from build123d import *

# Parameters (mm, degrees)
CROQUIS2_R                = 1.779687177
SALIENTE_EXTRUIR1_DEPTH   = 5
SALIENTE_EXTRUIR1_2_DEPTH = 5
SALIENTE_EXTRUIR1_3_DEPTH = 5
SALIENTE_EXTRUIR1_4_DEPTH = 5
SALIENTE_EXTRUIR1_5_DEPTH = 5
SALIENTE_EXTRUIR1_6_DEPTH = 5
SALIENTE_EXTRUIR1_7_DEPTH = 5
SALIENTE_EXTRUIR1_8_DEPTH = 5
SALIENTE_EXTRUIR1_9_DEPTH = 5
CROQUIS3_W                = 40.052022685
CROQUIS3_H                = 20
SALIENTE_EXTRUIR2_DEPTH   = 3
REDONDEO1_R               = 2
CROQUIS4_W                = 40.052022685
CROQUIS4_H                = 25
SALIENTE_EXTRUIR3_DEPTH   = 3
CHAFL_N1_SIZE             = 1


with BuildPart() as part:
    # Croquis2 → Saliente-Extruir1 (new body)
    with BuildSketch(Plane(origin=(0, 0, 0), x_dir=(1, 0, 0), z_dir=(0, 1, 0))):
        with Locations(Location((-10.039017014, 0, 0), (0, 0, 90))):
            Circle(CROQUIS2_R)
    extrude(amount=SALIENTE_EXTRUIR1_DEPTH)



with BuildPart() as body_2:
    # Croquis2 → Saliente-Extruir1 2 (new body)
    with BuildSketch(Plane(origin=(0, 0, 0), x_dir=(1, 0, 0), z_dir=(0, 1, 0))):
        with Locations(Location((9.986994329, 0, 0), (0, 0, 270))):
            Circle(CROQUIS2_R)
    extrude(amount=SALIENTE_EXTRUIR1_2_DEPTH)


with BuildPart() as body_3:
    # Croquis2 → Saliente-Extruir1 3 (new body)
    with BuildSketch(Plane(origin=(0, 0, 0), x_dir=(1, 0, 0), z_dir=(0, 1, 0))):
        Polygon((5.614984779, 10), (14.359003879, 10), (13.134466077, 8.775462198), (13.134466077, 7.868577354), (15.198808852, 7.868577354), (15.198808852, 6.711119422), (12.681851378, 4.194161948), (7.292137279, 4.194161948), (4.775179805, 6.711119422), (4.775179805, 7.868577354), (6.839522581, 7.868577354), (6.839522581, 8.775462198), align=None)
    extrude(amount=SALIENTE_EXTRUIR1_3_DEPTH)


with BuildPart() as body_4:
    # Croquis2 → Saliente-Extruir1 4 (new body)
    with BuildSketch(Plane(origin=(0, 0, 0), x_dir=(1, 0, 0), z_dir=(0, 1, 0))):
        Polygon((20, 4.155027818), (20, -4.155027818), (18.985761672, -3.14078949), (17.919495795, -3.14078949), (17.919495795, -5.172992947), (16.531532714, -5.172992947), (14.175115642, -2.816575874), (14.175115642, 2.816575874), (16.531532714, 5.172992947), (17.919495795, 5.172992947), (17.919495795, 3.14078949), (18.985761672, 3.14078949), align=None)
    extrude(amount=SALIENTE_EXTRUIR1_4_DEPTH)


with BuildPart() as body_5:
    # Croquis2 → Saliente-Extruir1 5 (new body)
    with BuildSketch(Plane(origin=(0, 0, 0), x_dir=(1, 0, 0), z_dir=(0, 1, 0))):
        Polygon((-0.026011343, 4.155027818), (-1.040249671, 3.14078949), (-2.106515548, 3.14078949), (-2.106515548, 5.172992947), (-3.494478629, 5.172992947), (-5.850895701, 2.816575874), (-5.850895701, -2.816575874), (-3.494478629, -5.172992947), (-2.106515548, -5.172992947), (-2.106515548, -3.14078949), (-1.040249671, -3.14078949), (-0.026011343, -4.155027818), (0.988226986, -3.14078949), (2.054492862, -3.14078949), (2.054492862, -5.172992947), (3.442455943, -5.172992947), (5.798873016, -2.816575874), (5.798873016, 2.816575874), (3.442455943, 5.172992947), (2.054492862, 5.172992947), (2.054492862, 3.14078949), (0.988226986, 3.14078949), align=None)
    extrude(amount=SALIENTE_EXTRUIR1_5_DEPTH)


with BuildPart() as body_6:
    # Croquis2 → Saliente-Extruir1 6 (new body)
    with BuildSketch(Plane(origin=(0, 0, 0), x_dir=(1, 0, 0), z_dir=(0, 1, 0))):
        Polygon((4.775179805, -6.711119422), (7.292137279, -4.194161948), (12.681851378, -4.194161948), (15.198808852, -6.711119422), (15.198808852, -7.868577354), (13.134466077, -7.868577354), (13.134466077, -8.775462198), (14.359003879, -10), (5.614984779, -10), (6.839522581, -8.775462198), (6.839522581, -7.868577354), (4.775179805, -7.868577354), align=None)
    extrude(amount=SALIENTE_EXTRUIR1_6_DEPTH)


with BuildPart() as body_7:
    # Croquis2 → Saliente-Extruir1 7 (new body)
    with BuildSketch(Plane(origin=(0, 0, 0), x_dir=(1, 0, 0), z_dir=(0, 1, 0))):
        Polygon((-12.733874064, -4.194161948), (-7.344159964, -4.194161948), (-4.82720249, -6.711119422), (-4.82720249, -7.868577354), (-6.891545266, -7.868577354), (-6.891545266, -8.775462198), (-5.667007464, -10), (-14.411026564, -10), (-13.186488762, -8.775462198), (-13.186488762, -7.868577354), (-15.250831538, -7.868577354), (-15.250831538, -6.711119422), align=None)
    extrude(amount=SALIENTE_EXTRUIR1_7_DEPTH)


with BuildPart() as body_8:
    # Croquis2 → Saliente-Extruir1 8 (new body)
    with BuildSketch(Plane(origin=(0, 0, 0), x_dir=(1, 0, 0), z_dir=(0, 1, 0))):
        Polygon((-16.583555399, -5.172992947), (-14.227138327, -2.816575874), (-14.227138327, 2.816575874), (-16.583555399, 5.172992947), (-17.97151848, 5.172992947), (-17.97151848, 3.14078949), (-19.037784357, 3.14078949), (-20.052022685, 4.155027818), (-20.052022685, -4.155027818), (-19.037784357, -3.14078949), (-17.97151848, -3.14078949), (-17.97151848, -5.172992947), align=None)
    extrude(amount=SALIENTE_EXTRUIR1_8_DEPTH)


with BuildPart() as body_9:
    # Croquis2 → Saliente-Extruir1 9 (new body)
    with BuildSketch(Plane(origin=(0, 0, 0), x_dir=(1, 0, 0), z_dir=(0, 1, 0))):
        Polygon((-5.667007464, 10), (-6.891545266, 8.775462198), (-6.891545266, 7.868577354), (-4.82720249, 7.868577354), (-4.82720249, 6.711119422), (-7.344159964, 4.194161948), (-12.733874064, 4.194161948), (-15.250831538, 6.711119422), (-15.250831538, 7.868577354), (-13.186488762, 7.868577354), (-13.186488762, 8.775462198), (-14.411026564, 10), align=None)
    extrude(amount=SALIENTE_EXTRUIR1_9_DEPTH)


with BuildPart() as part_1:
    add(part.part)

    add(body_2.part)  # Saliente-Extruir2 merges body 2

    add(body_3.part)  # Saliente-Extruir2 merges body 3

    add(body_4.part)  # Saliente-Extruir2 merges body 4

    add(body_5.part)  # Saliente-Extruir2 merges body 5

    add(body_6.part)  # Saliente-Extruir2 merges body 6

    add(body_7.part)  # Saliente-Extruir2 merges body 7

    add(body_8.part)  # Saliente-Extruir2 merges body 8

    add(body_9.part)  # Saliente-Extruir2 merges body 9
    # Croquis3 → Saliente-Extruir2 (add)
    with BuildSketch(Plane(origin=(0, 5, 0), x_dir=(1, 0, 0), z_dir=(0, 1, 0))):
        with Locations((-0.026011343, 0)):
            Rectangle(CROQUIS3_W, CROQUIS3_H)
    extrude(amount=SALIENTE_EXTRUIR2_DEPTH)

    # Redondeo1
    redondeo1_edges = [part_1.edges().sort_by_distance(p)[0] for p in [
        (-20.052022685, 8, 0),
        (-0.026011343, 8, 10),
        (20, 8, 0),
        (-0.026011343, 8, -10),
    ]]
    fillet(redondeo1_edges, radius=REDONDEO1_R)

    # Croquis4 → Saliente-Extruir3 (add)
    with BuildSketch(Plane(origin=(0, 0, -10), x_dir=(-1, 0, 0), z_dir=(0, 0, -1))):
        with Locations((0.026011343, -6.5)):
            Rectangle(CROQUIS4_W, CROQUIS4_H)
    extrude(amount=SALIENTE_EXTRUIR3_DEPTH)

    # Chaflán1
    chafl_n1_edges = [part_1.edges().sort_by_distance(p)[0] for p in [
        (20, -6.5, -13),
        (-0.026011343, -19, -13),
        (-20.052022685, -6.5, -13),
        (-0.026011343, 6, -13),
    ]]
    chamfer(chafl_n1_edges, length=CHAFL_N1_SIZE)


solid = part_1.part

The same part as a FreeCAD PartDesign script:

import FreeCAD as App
import Part
import Sketcher

V = App.Vector


def edges_at(feature, points):
    """Names of the edges that pass closest to the given points."""
    edges = feature.Shape.Edges
    near = lambda p: min(range(len(edges)), key=lambda i: edges[i].distToShape(Part.Vertex(*p))[0])
    return sorted({f"Edge{near(p) + 1}" for p in points})


def add_polygon(sketch, points):
    """Adds a closed chain of lines whose ends are joined by coincident constraints."""
    first, n = sketch.GeometryCount, len(points)
    for a, b in zip(points, points[1:] + points[:1]):
        sketch.addGeometry(Part.LineSegment(App.Vector(*a, 0), App.Vector(*b, 0)), False)
    for i in range(n):
        sketch.addConstraint(Sketcher.Constraint("Coincident", first + i, 2, first + (i + 1) % n, 1))

doc = App.newDocument("Part")
body = doc.addObject("PartDesign::Body", "Body")

# Sketch on XZ plane
sketch1 = body.newObject("Sketcher::SketchObject", "Sketch")
sketch1.AttachmentSupport = (doc.getObject("XZ_Plane"), [""])
sketch1.MapMode = "FlatFace"
sketch1.addGeometry(Part.Circle(V(-10, 0, 0), V(0, 0, 1), 1.8), False)
sketch1.addConstraint(Sketcher.Constraint("PointOnObject", 0, 3, -1))
sketch1.addConstraint(Sketcher.Constraint("Diameter", 0, 3.559374))
sketch1.addConstraint(Sketcher.Constraint("DistanceX", 0, 3, -1, 1, 10.039017))
pad1 = body.newObject("PartDesign::Pad", "Pad")
pad1.Profile = sketch1
pad1.Length = 5
pad1.Reversed = True
body2 = doc.addObject("PartDesign::Body", "Body001")

# Sketch on XZ plane
sketch2 = body2.newObject("Sketcher::SketchObject", "Sketch001")
sketch2.AttachmentSupport = (doc.getObject("XZ_Plane001"), [""])
sketch2.MapMode = "FlatFace"
sketch2.addGeometry(Part.Circle(V(10, 0, 0), V(0, 0, 1), 1.8), False)
sketch2.addConstraint(Sketcher.Constraint("PointOnObject", 0, 3, -1))
sketch2.addConstraint(Sketcher.Constraint("Diameter", 0, 3.559374))
sketch2.addConstraint(Sketcher.Constraint("DistanceX", -1, 1, 0, 3, 9.986994))
pad2 = body2.newObject("PartDesign::Pad", "Pad001")
pad2.Profile = sketch2
pad2.Length = 5
pad2.Reversed = True
body3 = doc.addObject("PartDesign::Body", "Body002")

# Sketch on XZ plane
sketch3 = body3.newObject("Sketcher::SketchObject", "Sketch002")
sketch3.AttachmentSupport = (doc.getObject("XZ_Plane002"), [""])
sketch3.MapMode = "FlatFace"
add_polygon(sketch3, [(14.4, -10), (5.6, -10), (6.8, -8.8), (6.8, -7.9), (4.8, -7.9), (4.8, -6.7), (7.3, -4.2), (12.7, -4.2), (15.2, -6.7), (15.2, -7.9), (13.1, -7.9), (13.1, -8.8)])  # lines 0-11
sketch3.addConstraint(Sketcher.Constraint("Horizontal", 0))
sketch3.addConstraint(Sketcher.Constraint("Vertical", 2))
sketch3.addConstraint(Sketcher.Constraint("Horizontal", 3))
sketch3.addConstraint(Sketcher.Constraint("Vertical", 4))
sketch3.addConstraint(Sketcher.Constraint("Horizontal", 6))
sketch3.addConstraint(Sketcher.Constraint("Vertical", 8))
sketch3.addConstraint(Sketcher.Constraint("Horizontal", 9))
sketch3.addConstraint(Sketcher.Constraint("Vertical", 10))
sketch3.addConstraint(Sketcher.Constraint("Parallel", 1, 5))
sketch3.addConstraint(Sketcher.Constraint("Perpendicular", 5, 7))
sketch3.addConstraint(Sketcher.Constraint("Parallel", 7, 11))
sketch3.addConstraint(Sketcher.Constraint("Horizontal", 4, 2, 7, 2))
sketch3.addConstraint(Sketcher.Constraint("Horizontal", 3, 2, 8, 2))
sketch3.addConstraint(Sketcher.Constraint("Horizontal", 1, 2, 10, 2))
sketch3.addConstraint(Sketcher.Constraint("Equal", 3, 9))
sketch3.addConstraint(Sketcher.Constraint("Equal", 5, 7))
sketch3.addConstraint(Sketcher.Constraint("DistanceY", 0, 2, -1, 1, 10.0))
sketch3.addConstraint(Sketcher.Constraint("DistanceX", 0, 2, 0, 1, 8.744019))
sketch3.addConstraint(Sketcher.Constraint("DistanceY", 1, 2, 5, 2, 4.5813))
sketch3.addConstraint(Sketcher.Constraint("DistanceX", 3, 2, 3, 1, 2.064343))
sketch3.addConstraint(Sketcher.Constraint("DistanceX", 6, 1, 6, 2, 5.389714))
sketch3.addConstraint(Sketcher.Constraint("DistanceY", 2, 1, 2, 2, 0.906885))
sketch3.addConstraint(Sketcher.Constraint("DistanceY", 4, 1, 4, 2, 1.157458))
sketch3.addConstraint(Sketcher.Constraint("DistanceX", -1, 1, 3, 2, 4.77518))
pad3 = body3.newObject("PartDesign::Pad", "Pad002")
pad3.Profile = sketch3
pad3.Length = 5
pad3.Reversed = True
body4 = doc.addObject("PartDesign::Body", "Body003")

# Sketch on XZ plane
sketch4 = body4.newObject("Sketcher::SketchObject", "Sketch003")
sketch4.AttachmentSupport = (doc.getObject("XZ_Plane003"), [""])
sketch4.MapMode = "FlatFace"
add_polygon(sketch4, [(20, 4.2), (20, -4.2), (19, -3.1), (17.9, -3.1), (17.9, -5.2), (16.5, -5.2), (14.2, -2.8), (14.2, 2.8), (16.5, 5.2), (17.9, 5.2), (17.9, 3.1), (19, 3.1)])  # lines 0-11
sketch4.addConstraint(Sketcher.Constraint("Vertical", 0))
sketch4.addConstraint(Sketcher.Constraint("Horizontal", 2))
sketch4.addConstraint(Sketcher.Constraint("Vertical", 3))
sketch4.addConstraint(Sketcher.Constraint("Horizontal", 4))
sketch4.addConstraint(Sketcher.Constraint("Vertical", 6))
sketch4.addConstraint(Sketcher.Constraint("Horizontal", 8))
sketch4.addConstraint(Sketcher.Constraint("Vertical", 9))
sketch4.addConstraint(Sketcher.Constraint("Horizontal", 10))
sketch4.addConstraint(Sketcher.Constraint("Symmetric", 4, 2, 7, 2, -1))
sketch4.addConstraint(Sketcher.Constraint("Symmetric", 2, 2, 9, 2, -1))
sketch4.addConstraint(Sketcher.Constraint("Parallel", 1, 5))
sketch4.addConstraint(Sketcher.Constraint("Perpendicular", 5, 7))
sketch4.addConstraint(Sketcher.Constraint("Parallel", 7, 11))
sketch4.addConstraint(Sketcher.Constraint("Vertical", 1, 2, 10, 2))
sketch4.addConstraint(Sketcher.Constraint("Equal", 5, 7))
sketch4.addConstraint(Sketcher.Constraint("DistanceX", -1, 1, 0, 2, 20.0))
sketch4.addConstraint(Sketcher.Constraint("DistanceY", 6, 1, 6, 2, 5.633152))
sketch4.addConstraint(Sketcher.Constraint("Distance", 1, 1.43435))
sketch4.addConstraint(Sketcher.Constraint("DistanceX", 2, 2, 2, 1, 1.066266))
sketch4.addConstraint(Sketcher.Constraint("DistanceX", 4, 2, 4, 1, 1.387963))
sketch4.addConstraint(Sketcher.Constraint("DistanceY", 0, 2, 0, 1, 8.310056))
sketch4.addConstraint(Sketcher.Constraint("DistanceY", 3, 2, 3, 1, 2.032203))
pad4 = body4.newObject("PartDesign::Pad", "Pad003")
pad4.Profile = sketch4
pad4.Length = 5
pad4.Reversed = True
body5 = doc.addObject("PartDesign::Body", "Body004")

# Sketch on XZ plane
sketch5 = body5.newObject("Sketcher::SketchObject", "Sketch004")
sketch5.AttachmentSupport = (doc.getObject("XZ_Plane004"), [""])
sketch5.MapMode = "FlatFace"
add_polygon(sketch5, [(0, -4.2), (-1, -3.1), (-2.1, -3.1), (-2.1, -5.2), (-3.5, -5.2), (-5.9, -2.8), (-5.9, 2.8), (-3.5, 5.2), (-2.1, 5.2), (-2.1, 3.1), (-1, 3.1), (0, 4.2), (1, 3.1), (2.1, 3.1), (2.1, 5.2), (3.4, 5.2), (5.8, 2.8), (5.8, -2.8), (3.4, -5.2), (2.1, -5.2), (2.1, -3.1), (1, -3.1)])  # lines 0-21
sketch5.addConstraint(Sketcher.Constraint("Horizontal", 1))
sketch5.addConstraint(Sketcher.Constraint("Vertical", 2))
sketch5.addConstraint(Sketcher.Constraint("Horizontal", 3))
sketch5.addConstraint(Sketcher.Constraint("Vertical", 5))
sketch5.addConstraint(Sketcher.Constraint("Horizontal", 7))
sketch5.addConstraint(Sketcher.Constraint("Vertical", 8))
sketch5.addConstraint(Sketcher.Constraint("Horizontal", 9))
sketch5.addConstraint(Sketcher.Constraint("Horizontal", 12))
sketch5.addConstraint(Sketcher.Constraint("Vertical", 13))
sketch5.addConstraint(Sketcher.Constraint("Horizontal", 14))
sketch5.addConstraint(Sketcher.Constraint("Vertical", 16))
sketch5.addConstraint(Sketcher.Constraint("Horizontal", 18))
sketch5.addConstraint(Sketcher.Constraint("Vertical", 19))
sketch5.addConstraint(Sketcher.Constraint("Horizontal", 20))
sketch5.addConstraint(Sketcher.Constraint("Symmetric", 3, 2, 6, 2, -1))
sketch5.addConstraint(Sketcher.Constraint("Symmetric", 1, 2, 8, 2, -1))
sketch5.addConstraint(Sketcher.Constraint("Symmetric", 14, 2, 17, 2, -1))
sketch5.addConstraint(Sketcher.Constraint("Symmetric", 12, 2, 19, 2, -1))
sketch5.addConstraint(Sketcher.Constraint("Symmetric", 10, 2, 21, 2, -1))
sketch5.addConstraint(Sketcher.Constraint("Parallel", 0, 4))
sketch5.addConstraint(Sketcher.Constraint("Perpendicular", 4, 6))
sketch5.addConstraint(Sketcher.Constraint("Parallel", 6, 10))
sketch5.addConstraint(Sketcher.Constraint("Perpendicular", 10, 11))
sketch5.addConstraint(Sketcher.Constraint("Parallel", 11, 15))
sketch5.addConstraint(Sketcher.Constraint("Perpendicular", 15, 17))
sketch5.addConstraint(Sketcher.Constraint("Parallel", 17, 21))
sketch5.addConstraint(Sketcher.Constraint("Horizontal", 9, 2, 11, 2))
sketch5.addConstraint(Sketcher.Constraint("Horizontal", 7, 2, 13, 2))
sketch5.addConstraint(Sketcher.Constraint("Horizontal", 5, 2, 15, 2))
sketch5.addConstraint(Sketcher.Constraint("Horizontal", 4, 2, 16, 2))
sketch5.addConstraint(Sketcher.Constraint("Equal", 9, 12))
sketch5.addConstraint(Sketcher.Constraint("Equal", 7, 14))
sketch5.addConstraint(Sketcher.Constraint("DistanceY", 5, 1, 5, 2, 5.633152))
sketch5.addConstraint(Sketcher.Constraint("Distance", 0, 1.43435))
sketch5.addConstraint(Sketcher.Constraint("DistanceX", 1, 2, 1, 1, 1.066266))
sketch5.addConstraint(Sketcher.Constraint("DistanceX", 3, 2, 3, 1, 1.387963))
sketch5.addConstraint(Sketcher.Constraint("DistanceY", 2, 2, 2, 1, 2.032203))
sketch5.addConstraint(Sketcher.Constraint("DistanceX", 0, 2, -1, 1, 1.04025))
sketch5.addConstraint(Sketcher.Constraint("DistanceY", 0, 2, -1, 1, 3.140789))
pad5 = body5.newObject("PartDesign::Pad", "Pad004")
pad5.Profile = sketch5
pad5.Length = 5
pad5.Reversed = True
body6 = doc.addObject("PartDesign::Body", "Body005")

# Sketch on XZ plane
sketch6 = body6.newObject("Sketcher::SketchObject", "Sketch005")
sketch6.AttachmentSupport = (doc.getObject("XZ_Plane005"), [""])
sketch6.MapMode = "FlatFace"
add_polygon(sketch6, [(7.3, 4.2), (4.8, 6.7), (4.8, 7.9), (6.8, 7.9), (6.8, 8.8), (5.6, 10), (14.4, 10), (13.1, 8.8), (13.1, 7.9), (15.2, 7.9), (15.2, 6.7), (12.7, 4.2)])  # lines 0-11
sketch6.addConstraint(Sketcher.Constraint("Vertical", 1))
sketch6.addConstraint(Sketcher.Constraint("Horizontal", 2))
sketch6.addConstraint(Sketcher.Constraint("Vertical", 3))
sketch6.addConstraint(Sketcher.Constraint("Horizontal", 5))
sketch6.addConstraint(Sketcher.Constraint("Vertical", 7))
sketch6.addConstraint(Sketcher.Constraint("Horizontal", 8))
sketch6.addConstraint(Sketcher.Constraint("Vertical", 9))
sketch6.addConstraint(Sketcher.Constraint("Horizontal", 11))
sketch6.addConstraint(Sketcher.Constraint("Parallel", 0, 4))
sketch6.addConstraint(Sketcher.Constraint("Perpendicular", 4, 6))
sketch6.addConstraint(Sketcher.Constraint("Parallel", 6, 10))
sketch6.addConstraint(Sketcher.Constraint("Horizontal", 3, 2, 6, 2))
sketch6.addConstraint(Sketcher.Constraint("Horizontal", 2, 2, 7, 2))
sketch6.addConstraint(Sketcher.Constraint("Horizontal", 0, 2, 9, 2))
sketch6.addConstraint(Sketcher.Constraint("Equal", 2, 8))
sketch6.addConstraint(Sketcher.Constraint("Equal", 4, 6))
sketch6.addConstraint(Sketcher.Constraint("DistanceY", -1, 1, 4, 2, 10.0))
sketch6.addConstraint(Sketcher.Constraint("DistanceX", 5, 1, 5, 2, 8.744019))
sketch6.addConstraint(Sketcher.Constraint("DistanceY", 10, 2, 6, 2, 4.5813))
sketch6.addConstraint(Sketcher.Constraint("DistanceX", 2, 1, 2, 2, 2.064343))
sketch6.addConstraint(Sketcher.Constraint("DistanceX", 11, 2, 11, 1, 5.389714))
sketch6.addConstraint(Sketcher.Constraint("DistanceY", 1, 1, 1, 2, 1.157458))
sketch6.addConstraint(Sketcher.Constraint("DistanceY", 3, 1, 3, 2, 0.906885))
sketch6.addConstraint(Sketcher.Constraint("DistanceX", -1, 1, 0, 2, 4.77518))
pad6 = body6.newObject("PartDesign::Pad", "Pad005")
pad6.Profile = sketch6
pad6.Length = 5
pad6.Reversed = True
body7 = doc.addObject("PartDesign::Body", "Body006")

# Sketch on XZ plane
sketch7 = body7.newObject("Sketcher::SketchObject", "Sketch006")
sketch7.AttachmentSupport = (doc.getObject("XZ_Plane006"), [""])
sketch7.MapMode = "FlatFace"
add_polygon(sketch7, [(-7.3, 4.2), (-12.7, 4.2), (-15.3, 6.7), (-15.3, 7.9), (-13.2, 7.9), (-13.2, 8.8), (-14.4, 10), (-5.7, 10), (-6.9, 8.8), (-6.9, 7.9), (-4.8, 7.9), (-4.8, 6.7)])  # lines 0-11
sketch7.addConstraint(Sketcher.Constraint("Horizontal", 0))
sketch7.addConstraint(Sketcher.Constraint("Vertical", 2))
sketch7.addConstraint(Sketcher.Constraint("Horizontal", 3))
sketch7.addConstraint(Sketcher.Constraint("Vertical", 4))
sketch7.addConstraint(Sketcher.Constraint("Horizontal", 6))
sketch7.addConstraint(Sketcher.Constraint("Vertical", 8))
sketch7.addConstraint(Sketcher.Constraint("Horizontal", 9))
sketch7.addConstraint(Sketcher.Constraint("Vertical", 10))
sketch7.addConstraint(Sketcher.Constraint("Parallel", 1, 5))
sketch7.addConstraint(Sketcher.Constraint("Perpendicular", 5, 7))
sketch7.addConstraint(Sketcher.Constraint("Parallel", 7, 11))
sketch7.addConstraint(Sketcher.Constraint("Horizontal", 4, 2, 7, 2))
sketch7.addConstraint(Sketcher.Constraint("Horizontal", 3, 2, 8, 2))
sketch7.addConstraint(Sketcher.Constraint("Horizontal", 1, 2, 10, 2))
sketch7.addConstraint(Sketcher.Constraint("Equal", 3, 9))
sketch7.addConstraint(Sketcher.Constraint("Equal", 5, 7))
sketch7.addConstraint(Sketcher.Constraint("DistanceY", -1, 1, 5, 2, 10.0))
sketch7.addConstraint(Sketcher.Constraint("DistanceX", 6, 1, 6, 2, 8.744019))
sketch7.addConstraint(Sketcher.Constraint("DistanceY", 0, 2, 4, 2, 4.5813))
sketch7.addConstraint(Sketcher.Constraint("DistanceX", 0, 2, 0, 1, 5.389714))
sketch7.addConstraint(Sketcher.Constraint("DistanceX", 3, 1, 3, 2, 2.064343))
sketch7.addConstraint(Sketcher.Constraint("DistanceY", 2, 1, 2, 2, 1.157458))
sketch7.addConstraint(Sketcher.Constraint("DistanceY", 4, 1, 4, 2, 0.906885))
sketch7.addConstraint(Sketcher.Constraint("DistanceX", 1, 2, -1, 1, 15.250832))
pad7 = body7.newObject("PartDesign::Pad", "Pad006")
pad7.Profile = sketch7
pad7.Length = 5
pad7.Reversed = True
body8 = doc.addObject("PartDesign::Body", "Body007")

# Sketch on XZ plane
sketch8 = body8.newObject("Sketcher::SketchObject", "Sketch007")
sketch8.AttachmentSupport = (doc.getObject("XZ_Plane007"), [""])
sketch8.MapMode = "FlatFace"
add_polygon(sketch8, [(-16.6, 5.2), (-14.2, 2.8), (-14.2, -2.8), (-16.6, -5.2), (-18, -5.2), (-18, -3.1), (-19, -3.1), (-20.1, -4.2), (-20.1, 4.2), (-19, 3.1), (-18, 3.1), (-18, 5.2)])  # lines 0-11
sketch8.addConstraint(Sketcher.Constraint("Vertical", 1))
sketch8.addConstraint(Sketcher.Constraint("Horizontal", 3))
sketch8.addConstraint(Sketcher.Constraint("Vertical", 4))
sketch8.addConstraint(Sketcher.Constraint("Horizontal", 5))
sketch8.addConstraint(Sketcher.Constraint("Vertical", 7))
sketch8.addConstraint(Sketcher.Constraint("Horizontal", 9))
sketch8.addConstraint(Sketcher.Constraint("Vertical", 10))
sketch8.addConstraint(Sketcher.Constraint("Horizontal", 11))
sketch8.addConstraint(Sketcher.Constraint("Symmetric", 5, 2, 8, 2, -1))
sketch8.addConstraint(Sketcher.Constraint("Symmetric", 3, 2, 10, 2, -1))
sketch8.addConstraint(Sketcher.Constraint("Perpendicular", 0, 2))
sketch8.addConstraint(Sketcher.Constraint("Parallel", 2, 6))
sketch8.addConstraint(Sketcher.Constraint("Perpendicular", 6, 8))
sketch8.addConstraint(Sketcher.Constraint("Vertical", 2, 2, 11, 2))
sketch8.addConstraint(Sketcher.Constraint("Equal", 0, 2))
sketch8.addConstraint(Sketcher.Constraint("DistanceY", 1, 2, 1, 1, 5.633152))
sketch8.addConstraint(Sketcher.Constraint("Distance", 6, 1.43435))
sketch8.addConstraint(Sketcher.Constraint("DistanceX", 3, 2, 3, 1, 1.387963))
sketch8.addConstraint(Sketcher.Constraint("DistanceX", 5, 2, 5, 1, 1.066266))
sketch8.addConstraint(Sketcher.Constraint("DistanceY", 4, 1, 4, 2, 2.032203))
sketch8.addConstraint(Sketcher.Constraint("DistanceY", 7, 1, 7, 2, 8.310056))
sketch8.addConstraint(Sketcher.Constraint("DistanceX", 0, 2, -1, 1, 14.227138))
pad8 = body8.newObject("PartDesign::Pad", "Pad007")
pad8.Profile = sketch8
pad8.Length = 5
pad8.Reversed = True
body9 = doc.addObject("PartDesign::Body", "Body008")

# Sketch on XZ plane
sketch9 = body9.newObject("Sketcher::SketchObject", "Sketch008")
sketch9.AttachmentSupport = (doc.getObject("XZ_Plane008"), [""])
sketch9.MapMode = "FlatFace"
add_polygon(sketch9, [(-6.9, -8.8), (-5.7, -10), (-14.4, -10), (-13.2, -8.8), (-13.2, -7.9), (-15.3, -7.9), (-15.3, -6.7), (-12.7, -4.2), (-7.3, -4.2), (-4.8, -6.7), (-4.8, -7.9), (-6.9, -7.9)])  # lines 0-11
sketch9.addConstraint(Sketcher.Constraint("Horizontal", 1))
sketch9.addConstraint(Sketcher.Constraint("Vertical", 3))
sketch9.addConstraint(Sketcher.Constraint("Horizontal", 4))
sketch9.addConstraint(Sketcher.Constraint("Vertical", 5))
sketch9.addConstraint(Sketcher.Constraint("Horizontal", 7))
sketch9.addConstraint(Sketcher.Constraint("Vertical", 9))
sketch9.addConstraint(Sketcher.Constraint("Horizontal", 10))
sketch9.addConstraint(Sketcher.Constraint("Vertical", 11))
sketch9.addConstraint(Sketcher.Constraint("Perpendicular", 0, 2))
sketch9.addConstraint(Sketcher.Constraint("Parallel", 2, 6))
sketch9.addConstraint(Sketcher.Constraint("Perpendicular", 6, 8))
sketch9.addConstraint(Sketcher.Constraint("Horizontal", 5, 2, 8, 2))
sketch9.addConstraint(Sketcher.Constraint("Horizontal", 4, 2, 9, 2))
sketch9.addConstraint(Sketcher.Constraint("Horizontal", 2, 2, 11, 2))
sketch9.addConstraint(Sketcher.Constraint("Equal", 4, 10))
sketch9.addConstraint(Sketcher.Constraint("Equal", 0, 2))
sketch9.addConstraint(Sketcher.Constraint("DistanceY", 0, 2, -1, 1, 10.0))
sketch9.addConstraint(Sketcher.Constraint("DistanceX", 1, 2, 1, 1, 8.744019))
sketch9.addConstraint(Sketcher.Constraint("DistanceY", 2, 2, 6, 2, 4.5813))
sketch9.addConstraint(Sketcher.Constraint("DistanceX", 4, 2, 4, 1, 2.064343))
sketch9.addConstraint(Sketcher.Constraint("DistanceX", 7, 1, 7, 2, 5.389714))
sketch9.addConstraint(Sketcher.Constraint("DistanceY", 3, 1, 3, 2, 0.906885))
sketch9.addConstraint(Sketcher.Constraint("DistanceY", 5, 1, 5, 2, 1.157458))
sketch9.addConstraint(Sketcher.Constraint("DistanceX", 2, 2, -1, 1, 13.186489))
pad9 = body9.newObject("PartDesign::Pad", "Pad008")
pad9.Profile = sketch9
pad9.Length = 5
pad9.Reversed = True
body.AllowCompound = True
doc.recompute()

boolean = body.newObject("PartDesign::Boolean", "Boolean")
boolean.Type = "Fuse"
boolean.addObjects([body2])
doc.recompute()

boolean2 = body.newObject("PartDesign::Boolean", "Boolean001")
boolean2.Type = "Fuse"
boolean2.addObjects([body3])
doc.recompute()

boolean3 = body.newObject("PartDesign::Boolean", "Boolean002")
boolean3.Type = "Fuse"
boolean3.addObjects([body4])
doc.recompute()

boolean4 = body.newObject("PartDesign::Boolean", "Boolean003")
boolean4.Type = "Fuse"
boolean4.addObjects([body5])
doc.recompute()

boolean5 = body.newObject("PartDesign::Boolean", "Boolean004")
boolean5.Type = "Fuse"
boolean5.addObjects([body6])
doc.recompute()

boolean6 = body.newObject("PartDesign::Boolean", "Boolean005")
boolean6.Type = "Fuse"
boolean6.addObjects([body7])
doc.recompute()

boolean7 = body.newObject("PartDesign::Boolean", "Boolean006")
boolean7.Type = "Fuse"
boolean7.addObjects([body8])
doc.recompute()

boolean8 = body.newObject("PartDesign::Boolean", "Boolean007")
boolean8.Type = "Fuse"
boolean8.addObjects([body9])

# Sketch on XZ plane
sketch10 = body.newObject("Sketcher::SketchObject", "Sketch009")
sketch10.AttachmentSupport = (doc.getObject("XZ_Plane"), [""])
sketch10.MapMode = "FlatFace"
sketch10.AttachmentOffset = App.Placement(V(0, 0, -5), App.Rotation())
add_polygon(sketch10, [(-20, -10), (-20, 10), (20, 10), (20, -10)])  # lines 0-3
sketch10.addConstraint(Sketcher.Constraint("Vertical", 0))
sketch10.addConstraint(Sketcher.Constraint("Horizontal", 1))
sketch10.addConstraint(Sketcher.Constraint("Vertical", 2))
sketch10.addConstraint(Sketcher.Constraint("Horizontal", 3))
sketch10.addConstraint(Sketcher.Constraint("DistanceY", 0, 1, 0, 2, 20.0))
sketch10.addConstraint(Sketcher.Constraint("DistanceY", -1, 1, 0, 2, 10.0))
sketch10.addConstraint(Sketcher.Constraint("DistanceX", -1, 1, 1, 2, 20.0))
sketch10.addConstraint(Sketcher.Constraint("DistanceX", 1, 1, 1, 2, 40.052023))
pad10 = body.newObject("PartDesign::Pad", "Pad009")
pad10.Profile = sketch10
pad10.Length = 3
pad10.Reversed = True
doc.recompute()

fillet = body.newObject("PartDesign::Fillet", "Fillet")
fillet.Base = (pad10, edges_at(pad10, [
    (-20.052, 8, 0),
    (-0.026, 8, 10),
    (20, 8, 0),
    (-0.026, 8, -10),
]))
fillet.Radius = 2

# Sketch on XY plane
sketch11 = body.newObject("Sketcher::SketchObject", "Sketch010")
sketch11.AttachmentSupport = (doc.getObject("XY_Plane"), [""])
sketch11.MapMode = "FlatFace"
sketch11.AttachmentOffset = App.Placement(V(0, 0, -10), App.Rotation())
add_polygon(sketch11, [(20, 6), (20, -19), (-20, -19), (-20, 6)])  # lines 0-3
sketch11.addConstraint(Sketcher.Constraint("Vertical", 0))
sketch11.addConstraint(Sketcher.Constraint("Horizontal", 1))
sketch11.addConstraint(Sketcher.Constraint("Vertical", 2))
sketch11.addConstraint(Sketcher.Constraint("Horizontal", 3))
sketch11.addConstraint(Sketcher.Constraint("DistanceY", 0, 2, 0, 1, 25.0))
sketch11.addConstraint(Sketcher.Constraint("DistanceX", -1, 1, 0, 2, 20.0))
sketch11.addConstraint(Sketcher.Constraint("DistanceY", 0, 2, -1, 1, 19.0))
sketch11.addConstraint(Sketcher.Constraint("DistanceX", 1, 2, 1, 1, 40.052023))
pad11 = body.newObject("PartDesign::Pad", "Pad010")
pad11.Profile = sketch11
pad11.Length = 3
pad11.Reversed = True
doc.recompute()

chamfer = body.newObject("PartDesign::Chamfer", "Chamfer")
chamfer.Base = (pad11, edges_at(pad11, [
    (20, -6.5, -13),
    (-0.026, -19, -13),
    (-20.052, -6.5, -13),
    (-0.026, 6, -13),
]))
chamfer.Size = 1

doc.recompute()
